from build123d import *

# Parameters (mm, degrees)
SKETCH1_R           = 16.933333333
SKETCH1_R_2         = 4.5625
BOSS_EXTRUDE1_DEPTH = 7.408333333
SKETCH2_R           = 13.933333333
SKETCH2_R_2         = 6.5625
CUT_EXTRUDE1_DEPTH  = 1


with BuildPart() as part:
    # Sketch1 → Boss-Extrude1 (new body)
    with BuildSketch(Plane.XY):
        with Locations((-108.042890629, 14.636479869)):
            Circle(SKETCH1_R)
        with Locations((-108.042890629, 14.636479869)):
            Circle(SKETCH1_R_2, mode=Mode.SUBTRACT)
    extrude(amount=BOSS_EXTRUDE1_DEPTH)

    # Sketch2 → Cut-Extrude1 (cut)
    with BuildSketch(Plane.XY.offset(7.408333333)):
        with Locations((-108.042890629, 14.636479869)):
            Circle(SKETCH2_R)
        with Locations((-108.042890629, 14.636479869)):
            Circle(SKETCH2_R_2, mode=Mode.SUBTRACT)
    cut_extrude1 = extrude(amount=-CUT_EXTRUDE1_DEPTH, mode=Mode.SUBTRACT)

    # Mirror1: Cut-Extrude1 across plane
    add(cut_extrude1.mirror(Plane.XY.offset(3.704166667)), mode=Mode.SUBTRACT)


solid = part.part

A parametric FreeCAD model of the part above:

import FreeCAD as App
import Part
import Sketcher
from FreeCAD import Vector

doc = App.newDocument("Part")
params = doc.addObject("Spreadsheet::Sheet", "Params")
for row, (alias, value) in enumerate([
    ("pad1_length", "7.408333 mm"),
    ("pocket1_length", "1 mm"),
], start=1):
    params.set(f"A{row}", alias)
    params.set(f"B{row}", "=" + value)
    params.setAlias(f"B{row}", alias)

body = doc.addObject("PartDesign::Body", "Body")

# Sketch on XY plane
sketch1 = doc.addObject("Sketcher::SketchObject", "Sketch")
body.addObject(sketch1)
sketch1.AttachmentSupport = (doc.XY_Plane, [""])
sketch1.MapMode = "FlatFace"
sketch1.addGeometry(Part.Circle(Vector(-108, 14.6, 0), Vector(0, 0, 1), 16.9), False)
sketch1.addGeometry(Part.Circle(Vector(-108, 14.6, 0), Vector(0, 0, 1), 4.6), False)
sketch1.addConstraint(Sketcher.Constraint("Coincident", 1, 3, 0, 3))
sketch1.addConstraint(Sketcher.Constraint("Diameter", 1, 9.125))
sketch1.addConstraint(Sketcher.Constraint("Diameter", 0, 33.866667))
sketch1.addConstraint(Sketcher.Constraint("DistanceX", 0, 3, -1, 1, 108.042891))
sketch1.addConstraint(Sketcher.Constraint("DistanceY", -1, 1, 0, 3, 14.63648))
pad1 = doc.addObject("PartDesign::Pad", "Pad")
body.addObject(pad1)
pad1.Profile = sketch1
pad1.setExpression("Length", "Params.pad1_length")

# Sketch on XY plane
sketch2 = doc.addObject("Sketcher::SketchObject", "Sketch001")
body.addObject(sketch2)
sketch2.AttachmentSupport = (doc.XY_Plane, [""])
sketch2.MapMode = "FlatFace"
sketch2.AttachmentOffset = App.Placement(Vector(0, 0, 7.408333), App.Rotation())
sketch2.addGeometry(Part.Circle(Vector(-108, 15, 0), Vector(0, 0, 1), 14), False)
sketch2.addGeometry(Part.Circle(Vector(-108, 15, 0), Vector(0, 0, 1), 7), False)
sketch2.addConstraint(Sketcher.Constraint("Coincident", 1, 3, 0, 3))
sketch2.addConstraint(Sketcher.Constraint("Diameter", 1, 13.125))
sketch2.addConstraint(Sketcher.Constraint("Diameter", 0, 27.866667))
sketch2.addConstraint(Sketcher.Constraint("DistanceX", 0, 3, -1, 1, 108.042891))
sketch2.addConstraint(Sketcher.Constraint("DistanceY", -1, 1, 0, 3, 14.63648))
pocket1 = doc.addObject("PartDesign::Pocket", "Pocket")
body.addObject(pocket1)
pocket1.Profile = sketch2
pocket1.setExpression("Length", "Params.pocket1_length")
doc.recompute()

datumplane = doc.addObject("PartDesign::Plane", "DatumPlane")
body.addObject(datumplane)
datumplane.AttachmentSupport = (doc.XY_Plane, [""])
datumplane.MapMode = "FlatFace"
datumplane.AttachmentOffset = App.Placement(Vector(0, 0, 3.704167), App.Rotation())
mirrored = doc.addObject("PartDesign::Mirrored", "Mirrored")
body.addObject(mirrored)
mirrored.Originals = [pocket1]
mirrored.MirrorPlane = (datumplane, [""])
body.Tip = mirrored

doc.recompute()
